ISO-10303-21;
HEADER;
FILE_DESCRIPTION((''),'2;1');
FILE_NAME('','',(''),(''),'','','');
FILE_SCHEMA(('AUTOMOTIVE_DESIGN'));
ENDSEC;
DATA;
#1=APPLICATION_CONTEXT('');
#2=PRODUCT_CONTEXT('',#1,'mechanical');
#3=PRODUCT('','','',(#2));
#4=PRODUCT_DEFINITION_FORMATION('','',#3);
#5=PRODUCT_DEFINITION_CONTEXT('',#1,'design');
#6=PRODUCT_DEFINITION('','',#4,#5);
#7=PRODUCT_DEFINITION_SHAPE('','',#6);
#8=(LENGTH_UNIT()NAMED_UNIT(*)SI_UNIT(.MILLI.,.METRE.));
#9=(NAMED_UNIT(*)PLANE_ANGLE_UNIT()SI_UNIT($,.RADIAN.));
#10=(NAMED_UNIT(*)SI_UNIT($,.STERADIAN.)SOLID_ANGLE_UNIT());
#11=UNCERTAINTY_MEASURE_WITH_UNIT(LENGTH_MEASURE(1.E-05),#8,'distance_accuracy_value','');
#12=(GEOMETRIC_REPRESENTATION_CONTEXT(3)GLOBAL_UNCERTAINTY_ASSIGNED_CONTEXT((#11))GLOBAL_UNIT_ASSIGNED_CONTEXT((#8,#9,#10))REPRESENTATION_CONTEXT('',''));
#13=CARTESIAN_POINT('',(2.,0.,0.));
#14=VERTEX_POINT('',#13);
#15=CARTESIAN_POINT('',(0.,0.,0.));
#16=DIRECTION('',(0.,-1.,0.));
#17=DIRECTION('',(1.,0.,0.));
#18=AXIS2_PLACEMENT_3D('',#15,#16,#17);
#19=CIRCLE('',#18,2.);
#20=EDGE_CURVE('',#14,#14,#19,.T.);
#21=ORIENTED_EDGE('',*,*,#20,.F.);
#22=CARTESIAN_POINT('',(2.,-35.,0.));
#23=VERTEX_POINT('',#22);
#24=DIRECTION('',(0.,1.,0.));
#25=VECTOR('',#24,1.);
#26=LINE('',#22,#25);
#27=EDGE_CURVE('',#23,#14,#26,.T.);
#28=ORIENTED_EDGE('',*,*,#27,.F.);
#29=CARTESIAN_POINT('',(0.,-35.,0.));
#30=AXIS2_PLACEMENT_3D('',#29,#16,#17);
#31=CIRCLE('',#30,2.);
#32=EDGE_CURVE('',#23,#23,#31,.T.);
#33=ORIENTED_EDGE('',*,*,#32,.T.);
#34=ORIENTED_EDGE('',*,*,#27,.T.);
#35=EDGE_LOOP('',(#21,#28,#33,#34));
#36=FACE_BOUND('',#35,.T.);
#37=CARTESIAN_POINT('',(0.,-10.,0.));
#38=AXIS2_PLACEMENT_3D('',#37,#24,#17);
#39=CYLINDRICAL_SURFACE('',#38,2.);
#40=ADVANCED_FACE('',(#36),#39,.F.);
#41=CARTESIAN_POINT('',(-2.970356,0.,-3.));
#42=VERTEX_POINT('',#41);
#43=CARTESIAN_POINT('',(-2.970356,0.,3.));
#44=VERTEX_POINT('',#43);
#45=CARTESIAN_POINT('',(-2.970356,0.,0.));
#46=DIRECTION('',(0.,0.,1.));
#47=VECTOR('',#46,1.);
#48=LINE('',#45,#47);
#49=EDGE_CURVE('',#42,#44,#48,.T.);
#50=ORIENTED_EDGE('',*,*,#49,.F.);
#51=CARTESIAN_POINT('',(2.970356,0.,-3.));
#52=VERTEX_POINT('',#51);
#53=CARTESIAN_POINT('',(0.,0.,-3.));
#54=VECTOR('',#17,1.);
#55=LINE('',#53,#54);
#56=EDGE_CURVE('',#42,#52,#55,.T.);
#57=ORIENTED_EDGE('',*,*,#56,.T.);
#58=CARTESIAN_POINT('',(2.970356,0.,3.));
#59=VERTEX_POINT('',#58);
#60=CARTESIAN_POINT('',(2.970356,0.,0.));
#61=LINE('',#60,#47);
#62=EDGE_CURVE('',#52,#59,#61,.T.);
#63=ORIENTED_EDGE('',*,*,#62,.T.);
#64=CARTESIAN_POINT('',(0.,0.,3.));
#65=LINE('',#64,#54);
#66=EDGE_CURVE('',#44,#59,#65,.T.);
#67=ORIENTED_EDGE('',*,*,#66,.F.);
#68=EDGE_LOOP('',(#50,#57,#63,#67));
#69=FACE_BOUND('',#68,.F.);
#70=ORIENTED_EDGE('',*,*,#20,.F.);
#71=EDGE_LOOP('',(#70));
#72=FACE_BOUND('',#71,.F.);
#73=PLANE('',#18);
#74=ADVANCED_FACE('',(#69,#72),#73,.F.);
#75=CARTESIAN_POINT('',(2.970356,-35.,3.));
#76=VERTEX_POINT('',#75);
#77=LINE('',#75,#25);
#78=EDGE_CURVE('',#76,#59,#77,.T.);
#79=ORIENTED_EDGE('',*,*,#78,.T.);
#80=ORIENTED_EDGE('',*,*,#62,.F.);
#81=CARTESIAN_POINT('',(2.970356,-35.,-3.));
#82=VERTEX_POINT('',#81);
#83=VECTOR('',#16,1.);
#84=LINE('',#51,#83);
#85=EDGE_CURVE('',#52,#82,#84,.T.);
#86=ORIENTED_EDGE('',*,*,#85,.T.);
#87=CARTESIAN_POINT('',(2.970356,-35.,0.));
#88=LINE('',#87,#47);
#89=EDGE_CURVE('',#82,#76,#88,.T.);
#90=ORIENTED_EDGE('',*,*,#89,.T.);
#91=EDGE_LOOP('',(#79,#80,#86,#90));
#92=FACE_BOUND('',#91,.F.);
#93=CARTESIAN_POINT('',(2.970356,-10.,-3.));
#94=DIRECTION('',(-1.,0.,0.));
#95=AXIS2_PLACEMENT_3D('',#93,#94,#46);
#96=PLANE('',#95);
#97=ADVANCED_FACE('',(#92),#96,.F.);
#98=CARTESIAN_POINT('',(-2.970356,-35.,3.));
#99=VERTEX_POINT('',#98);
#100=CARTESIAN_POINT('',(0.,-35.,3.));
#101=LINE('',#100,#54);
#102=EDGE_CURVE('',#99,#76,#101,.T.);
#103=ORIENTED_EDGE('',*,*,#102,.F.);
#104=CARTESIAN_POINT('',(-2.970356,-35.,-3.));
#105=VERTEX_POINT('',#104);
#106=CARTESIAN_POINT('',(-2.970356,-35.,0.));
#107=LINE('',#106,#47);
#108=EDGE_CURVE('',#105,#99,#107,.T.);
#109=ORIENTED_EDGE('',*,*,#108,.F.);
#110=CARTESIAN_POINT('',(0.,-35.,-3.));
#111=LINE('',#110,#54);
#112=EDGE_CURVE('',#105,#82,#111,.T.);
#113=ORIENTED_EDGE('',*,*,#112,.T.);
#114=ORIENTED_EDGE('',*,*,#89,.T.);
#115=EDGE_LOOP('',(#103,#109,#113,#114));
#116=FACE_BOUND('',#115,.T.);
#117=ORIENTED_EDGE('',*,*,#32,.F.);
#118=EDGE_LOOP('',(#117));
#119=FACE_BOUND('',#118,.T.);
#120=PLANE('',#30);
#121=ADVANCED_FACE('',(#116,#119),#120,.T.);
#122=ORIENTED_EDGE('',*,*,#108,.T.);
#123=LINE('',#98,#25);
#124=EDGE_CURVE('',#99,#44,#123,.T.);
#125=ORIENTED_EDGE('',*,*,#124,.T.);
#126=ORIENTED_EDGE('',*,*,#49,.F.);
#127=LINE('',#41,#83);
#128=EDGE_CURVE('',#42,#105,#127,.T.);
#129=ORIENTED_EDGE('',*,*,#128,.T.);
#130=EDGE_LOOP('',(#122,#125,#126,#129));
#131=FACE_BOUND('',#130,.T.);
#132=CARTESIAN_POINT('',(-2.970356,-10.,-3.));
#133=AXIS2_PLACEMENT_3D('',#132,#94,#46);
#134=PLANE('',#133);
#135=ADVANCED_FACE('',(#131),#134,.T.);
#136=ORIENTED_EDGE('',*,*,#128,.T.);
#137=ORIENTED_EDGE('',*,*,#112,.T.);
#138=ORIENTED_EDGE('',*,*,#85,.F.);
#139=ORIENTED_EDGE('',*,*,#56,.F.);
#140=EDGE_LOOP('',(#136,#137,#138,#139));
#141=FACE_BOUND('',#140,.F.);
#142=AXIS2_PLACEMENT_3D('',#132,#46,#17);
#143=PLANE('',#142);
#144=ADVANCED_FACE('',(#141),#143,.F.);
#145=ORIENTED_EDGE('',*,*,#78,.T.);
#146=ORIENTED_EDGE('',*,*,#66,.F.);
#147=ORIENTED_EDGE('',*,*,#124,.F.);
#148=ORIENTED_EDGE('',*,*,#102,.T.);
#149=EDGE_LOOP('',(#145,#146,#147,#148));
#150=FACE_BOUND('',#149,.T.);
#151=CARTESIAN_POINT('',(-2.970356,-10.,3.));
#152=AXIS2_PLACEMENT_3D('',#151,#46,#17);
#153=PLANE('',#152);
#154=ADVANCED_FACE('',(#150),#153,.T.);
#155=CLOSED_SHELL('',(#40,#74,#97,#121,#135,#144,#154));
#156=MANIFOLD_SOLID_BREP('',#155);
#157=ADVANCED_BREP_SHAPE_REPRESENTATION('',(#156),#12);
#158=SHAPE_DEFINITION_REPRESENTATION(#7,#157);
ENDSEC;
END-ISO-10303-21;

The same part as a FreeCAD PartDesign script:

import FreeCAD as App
import Part
import Sketcher

V = App.Vector
Q = App.Units.Quantity

doc = App.newDocument("Part")
body = doc.addObject("PartDesign::Body", "Body")

sketch1 = body.newObject("Sketcher::SketchObject", "Sketch")
sketch1.AttachmentSupport = (doc.getObject("XZ_Plane"), [""])
sketch1.MapMode = "FlatFace"
sketch1.addGeometry(Part.LineSegment(V(-2.970356, 3, 0), V(-2.970356, -3, 0)), False)
sketch1.addGeometry(Part.LineSegment(V(-2.970356, -3, 0), V(2.970356, -3, 0)), False)
sketch1.addGeometry(Part.LineSegment(V(2.970356, -3, 0), V(2.970356, 3, 0)), False)
sketch1.addGeometry(Part.LineSegment(V(2.970356, 3, 0), V(-2.970356, 3, 0)), False)
sketch1.addGeometry(Part.Circle(V(0, 0, 0), V(0, 0, 1), 2), False)
sketch1.addConstraint(Sketcher.Constraint("Coincident", 0, 2, 1, 1))
sketch1.addConstraint(Sketcher.Constraint("Coincident", 1, 2, 2, 1))
sketch1.addConstraint(Sketcher.Constraint("Coincident", 2, 2, 3, 1))
sketch1.addConstraint(Sketcher.Constraint("Coincident", 3, 2, 0, 1))
sketch1.addConstraint(Sketcher.Constraint("Vertical", 0))
sketch1.addConstraint(Sketcher.Constraint("Horizontal", 1))
sketch1.addConstraint(Sketcher.Constraint("Vertical", 2))
sketch1.addConstraint(Sketcher.Constraint("Horizontal", 3))
sketch1.addConstraint(Sketcher.Constraint("Coincident", 4, 3, -1, 1))
sketch1.addConstraint(Sketcher.Constraint("Symmetric", 0, 2, 2, 2, -1, 1))
sketch1.addConstraint(Sketcher.Constraint("Diameter", 4, Q("4 mm")))
sketch1.addConstraint(Sketcher.Constraint("DistanceY", 0, 2, 0, 1, Q("6 mm")))
sketch1.addConstraint(Sketcher.Constraint("DistanceX", 1, 1, 1, 2, Q("5.940712 mm")))
pad1 = body.newObject("PartDesign::Pad", "Pad")
pad1.Profile = sketch1
pad1.Length = 10

sketch2 = body.newObject("Sketcher::SketchObject", "Sketch001")
sketch2.AttachmentSupport = (doc.getObject("XZ_Plane"), [""])
sketch2.MapMode = "FlatFace"
sketch2.AttachmentOffset = App.Placement(V(0, 0, 10), App.Rotation())
sketch2.addGeometry(Part.LineSegment(V(-2.970356, 3, 0), V(-2.970356, -3, 0)), False)
sketch2.addGeometry(Part.LineSegment(V(-2.970356, -3, 0), V(2.970356, -3, 0)), False)
sketch2.addGeometry(Part.LineSegment(V(2.970356, -3, 0), V(2.970356, 3, 0)), False)
sketch2.addGeometry(Part.LineSegment(V(2.970356, 3, 0), V(-2.970356, 3, 0)), False)
sketch2.addGeometry(Part.Circle(V(0, 0, 0), V(0, 0, 1), 2), False)
sketch2.addConstraint(Sketcher.Constraint("Coincident", 0, 2, 1, 1))
sketch2.addConstraint(Sketcher.Constraint("Coincident", 1, 2, 2, 1))
sketch2.addConstraint(Sketcher.Constraint("Coincident", 2, 2, 3, 1))
sketch2.addConstraint(Sketcher.Constraint("Coincident", 3, 2, 0, 1))
sketch2.addConstraint(Sketcher.Constraint("Vertical", 0))
sketch2.addConstraint(Sketcher.Constraint("Horizontal", 1))
sketch2.addConstraint(Sketcher.Constraint("Vertical", 2))
sketch2.addConstraint(Sketcher.Constraint("Horizontal", 3))
sketch2.addConstraint(Sketcher.Constraint("Coincident", 4, 3, -1, 1))
sketch2.addConstraint(Sketcher.Constraint("Symmetric", 0, 2, 2, 2, -1, 1))
sketch2.addConstraint(Sketcher.Constraint("Diameter", 4, Q("4 mm")))
sketch2.addConstraint(Sketcher.Constraint("DistanceY", 0, 2, 0, 1, Q("6 mm")))
sketch2.addConstraint(Sketcher.Constraint("DistanceX", 1, 1, 1, 2, Q("5.940712 mm")))
pad2 = body.newObject("PartDesign::Pad", "Pad001")
pad2.Profile = sketch2
pad2.Length = 25

doc.recompute()
